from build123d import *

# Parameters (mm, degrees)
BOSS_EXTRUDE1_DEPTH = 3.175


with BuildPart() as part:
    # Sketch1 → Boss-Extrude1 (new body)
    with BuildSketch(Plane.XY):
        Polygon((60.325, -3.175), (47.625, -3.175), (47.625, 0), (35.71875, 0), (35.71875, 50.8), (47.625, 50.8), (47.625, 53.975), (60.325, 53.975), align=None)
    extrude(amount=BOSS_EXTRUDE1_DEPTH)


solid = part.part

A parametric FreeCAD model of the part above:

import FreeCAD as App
import Part
import Sketcher

V = App.Vector
Q = App.Units.Quantity


def add_polygon(sketch, points):
    """Adds a closed chain of lines whose ends are joined by coincident constraints."""
    first, n = sketch.GeometryCount, len(points)
    for a, b in zip(points, points[1:] + points[:1]):
        sketch.addGeometry(Part.LineSegment(App.Vector(*a, 0), App.Vector(*b, 0)), False)
    for i in range(n):
        sketch.addConstraint(Sketcher.Constraint("Coincident", first + i, 2, first + (i + 1) % n, 1))

doc = App.newDocument("Part")
body = doc.addObject("PartDesign::Body", "Body")

# Sketch on XY plane
sketch1 = body.newObject("Sketcher::SketchObject", "Sketch")
sketch1.AttachmentSupport = (doc.getObject("XY_Plane"), [""])
sketch1.MapMode = "FlatFace"
add_polygon(sketch1, [(47.625, -3.175), (60.325, -3.175), (60.325, 53.975), (47.625, 53.975), (47.625, 50.8), (35.71875, 50.8), (35.71875, 0), (47.625, 0)])  # lines 0-7
sketch1.addConstraint([
    Sketcher.Constraint("Horizontal", 0),
    Sketcher.Constraint("Vertical", 1),
    Sketcher.Constraint("Horizontal", 2),
    Sketcher.Constraint("Vertical", 3),
    Sketcher.Constraint("Horizontal", 4),
    Sketcher.Constraint("Vertical", 5),
    Sketcher.Constraint("Horizontal", 6),
    Sketcher.Constraint("Vertical", 7),
    Sketcher.Constraint("PointOnObject", 5, 2, -1),
    Sketcher.Constraint("Vertical", 3, 2, 6, 2),
    Sketcher.Constraint("Equal", 3, 7),
    Sketcher.Constraint("DistanceY", 5, 2, 5, 1, Q("2 in")),
    Sketcher.Constraint("DistanceX", 0, 1, 0, 2, Q("0.5 in")),
    Sketcher.Constraint("DistanceY", 1, 1, 1, 2, Q("2.25 in")),
    Sketcher.Constraint("DistanceX", 4, 2, 4, 1, Q("0.46875 in")),
    Sketcher.Constraint("DistanceX", -1, 1, 0, 2, Q("2.375 in")),
])
pad1 = body.newObject("PartDesign::Pad", "Pad")
pad1.Profile = sketch1
pad1.Length = Q("0.125 in")

doc.recompute()
